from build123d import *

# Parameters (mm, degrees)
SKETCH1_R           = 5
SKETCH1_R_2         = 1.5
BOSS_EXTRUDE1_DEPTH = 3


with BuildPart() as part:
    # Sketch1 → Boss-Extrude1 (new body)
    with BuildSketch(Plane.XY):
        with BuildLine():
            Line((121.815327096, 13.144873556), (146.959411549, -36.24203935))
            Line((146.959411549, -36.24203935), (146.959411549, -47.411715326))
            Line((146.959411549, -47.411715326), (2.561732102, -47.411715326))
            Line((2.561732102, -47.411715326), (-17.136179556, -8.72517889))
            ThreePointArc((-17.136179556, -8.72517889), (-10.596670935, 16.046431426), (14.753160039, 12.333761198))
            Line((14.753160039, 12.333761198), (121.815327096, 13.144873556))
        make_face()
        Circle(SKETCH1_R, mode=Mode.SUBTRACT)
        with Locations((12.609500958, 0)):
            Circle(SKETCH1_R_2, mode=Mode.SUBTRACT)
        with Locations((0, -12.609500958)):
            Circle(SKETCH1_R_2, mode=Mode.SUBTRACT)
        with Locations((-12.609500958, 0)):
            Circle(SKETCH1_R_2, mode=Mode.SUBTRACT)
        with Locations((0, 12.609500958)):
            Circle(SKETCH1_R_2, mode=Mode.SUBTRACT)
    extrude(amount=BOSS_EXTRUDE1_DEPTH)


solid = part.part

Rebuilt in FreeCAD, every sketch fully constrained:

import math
import FreeCAD as App
import Part
import Sketcher

doc = App.newDocument("Part")
params = doc.addObject("Spreadsheet::Sheet", "Params")
for row, (alias, value) in enumerate([
    ("sketch1_diameter", "3 mm"),
    ("sketch1_diameter2", "10 mm"),
    ("pad1_length", "3 mm"),
], start=1):
    params.set(f"A{row}", alias)
    params.set(f"B{row}", "=" + value)
    params.setAlias(f"B{row}", alias)

body = doc.addObject("PartDesign::Body", "Body")

# Sketch on XY plane
sketch1 = body.newObject("Sketcher::SketchObject", "Sketch")
sketch1.AttachmentSupport = (doc.getObject("XY_Plane"), [""])
sketch1.MapMode = "FlatFace"
sketch1.addGeometry(Part.LineSegment(App.Vector(147, -36.2, 0), App.Vector(121.8, 13.1, 0)), False)
sketch1.addGeometry(Part.LineSegment(App.Vector(121.8, 13.1, 0), App.Vector(14.8, 12.3, 0)), False)
sketch1.addGeometry(Part.ArcOfCircle(Part.Circle(App.Vector(0, 0, 0), App.Vector(0, 0, 1), 19.2), math.radians(40), math.radians(207)), False)
sketch1.addGeometry(Part.LineSegment(App.Vector(-17.1, -8.7, 0), App.Vector(2.6, -47.4, 0)), False)
sketch1.addGeometry(Part.LineSegment(App.Vector(2.6, -47.4, 0), App.Vector(147, -47.4, 0)), False)
sketch1.addGeometry(Part.LineSegment(App.Vector(147, -47.4, 0), App.Vector(147, -36.2, 0)), False)
sketch1.addGeometry(Part.Circle(App.Vector(12.6, 0, 0), App.Vector(0, 0, 1), 1.5), False)
sketch1.addGeometry(Part.Circle(App.Vector(0, -12.6, 0), App.Vector(0, 0, 1), 1.5), False)
sketch1.addGeometry(Part.Circle(App.Vector(0, 0, 0), App.Vector(0, 0, 1), 5), False)
sketch1.addGeometry(Part.Circle(App.Vector(-12.6, 0, 0), App.Vector(0, 0, 1), 1.5), False)
sketch1.addGeometry(Part.Circle(App.Vector(0, 12.6, 0), App.Vector(0, 0, 1), 1.5), False)
sketch1.addConstraint(Sketcher.Constraint("Coincident", 0, 2, 1, 1))
sketch1.addConstraint(Sketcher.Constraint("Coincident", 1, 2, 2, 1))
sketch1.addConstraint(Sketcher.Constraint("Tangent", 2, 2, 3, 1))
sketch1.addConstraint(Sketcher.Constraint("Coincident", 3, 2, 4, 1))
sketch1.addConstraint(Sketcher.Constraint("Coincident", 4, 2, 5, 1))
sketch1.addConstraint(Sketcher.Constraint("Coincident", 5, 2, 0, 1))
sketch1.addConstraint(Sketcher.Constraint("Horizontal", 4))
sketch1.addConstraint(Sketcher.Constraint("Vertical", 5))
sketch1.addConstraint(Sketcher.Constraint("Coincident", 2, 3, -1, 1))
sketch1.addConstraint(Sketcher.Constraint("Coincident", 8, 3, -1, 1))
sketch1.addConstraint(Sketcher.Constraint("Equal", 6, 7))
sketch1.addConstraint(Sketcher.Constraint("Equal", 7, 9))
sketch1.addConstraint(Sketcher.Constraint("Equal", 9, 10))
sketch1.addConstraint(Sketcher.Constraint("Symmetric", 6, 3, 9, 3, -1, 1))
sketch1.addConstraint(Sketcher.Constraint("Symmetric", 7, 3, 10, 3, -1, 1))
sketch1.addConstraint(Sketcher.Constraint("PointOnObject", 6, 3, -1))
sketch1.addConstraint(Sketcher.Constraint("PointOnObject", 7, 3, -2))
sketch1.addConstraint(Sketcher.Constraint("Diameter", 6, 3.0))
sketch1.addConstraint(Sketcher.Constraint("Diameter", 8, 10.0))
sketch1.addConstraint(Sketcher.Constraint("Radius", 2, 19.229597))
sketch1.addConstraint(Sketcher.Constraint("DistanceX", 9, 3, 6, 3, 25.219002))
sketch1.addConstraint(Sketcher.Constraint("DistanceY", 7, 3, 10, 3, 25.219002))
sketch1.addConstraint(Sketcher.Constraint("DistanceX", 4, 1, 4, 2, 144.397679))
sketch1.addConstraint(Sketcher.Constraint("DistanceY", 5, 2, 1, 2, 48.575801))
sketch1.addConstraint(Sketcher.Constraint("Distance", 0, 55.41924))
sketch1.addConstraint(Sketcher.Constraint("Distance", 1, 107.06524))
sketch1.addConstraint(Sketcher.Constraint("DistanceY", 5, 1, 5, 2, 11.169676))
sketch1.addConstraint(Sketcher.Constraint("DistanceX", -1, 1, 1, 2, 14.75316))
sketch1.addConstraint(Sketcher.Constraint("DistanceX", 2, 2, -1, 1, 17.13618))
sketch1.setExpression("Constraints[17]", "Params.sketch1_diameter")
sketch1.setExpression("Constraints[18]", "Params.sketch1_diameter2")
pad1 = body.newObject("PartDesign::Pad", "Pad")
pad1.Profile = sketch1
pad1.setExpression("Length", "Params.pad1_length")

doc.recompute()
